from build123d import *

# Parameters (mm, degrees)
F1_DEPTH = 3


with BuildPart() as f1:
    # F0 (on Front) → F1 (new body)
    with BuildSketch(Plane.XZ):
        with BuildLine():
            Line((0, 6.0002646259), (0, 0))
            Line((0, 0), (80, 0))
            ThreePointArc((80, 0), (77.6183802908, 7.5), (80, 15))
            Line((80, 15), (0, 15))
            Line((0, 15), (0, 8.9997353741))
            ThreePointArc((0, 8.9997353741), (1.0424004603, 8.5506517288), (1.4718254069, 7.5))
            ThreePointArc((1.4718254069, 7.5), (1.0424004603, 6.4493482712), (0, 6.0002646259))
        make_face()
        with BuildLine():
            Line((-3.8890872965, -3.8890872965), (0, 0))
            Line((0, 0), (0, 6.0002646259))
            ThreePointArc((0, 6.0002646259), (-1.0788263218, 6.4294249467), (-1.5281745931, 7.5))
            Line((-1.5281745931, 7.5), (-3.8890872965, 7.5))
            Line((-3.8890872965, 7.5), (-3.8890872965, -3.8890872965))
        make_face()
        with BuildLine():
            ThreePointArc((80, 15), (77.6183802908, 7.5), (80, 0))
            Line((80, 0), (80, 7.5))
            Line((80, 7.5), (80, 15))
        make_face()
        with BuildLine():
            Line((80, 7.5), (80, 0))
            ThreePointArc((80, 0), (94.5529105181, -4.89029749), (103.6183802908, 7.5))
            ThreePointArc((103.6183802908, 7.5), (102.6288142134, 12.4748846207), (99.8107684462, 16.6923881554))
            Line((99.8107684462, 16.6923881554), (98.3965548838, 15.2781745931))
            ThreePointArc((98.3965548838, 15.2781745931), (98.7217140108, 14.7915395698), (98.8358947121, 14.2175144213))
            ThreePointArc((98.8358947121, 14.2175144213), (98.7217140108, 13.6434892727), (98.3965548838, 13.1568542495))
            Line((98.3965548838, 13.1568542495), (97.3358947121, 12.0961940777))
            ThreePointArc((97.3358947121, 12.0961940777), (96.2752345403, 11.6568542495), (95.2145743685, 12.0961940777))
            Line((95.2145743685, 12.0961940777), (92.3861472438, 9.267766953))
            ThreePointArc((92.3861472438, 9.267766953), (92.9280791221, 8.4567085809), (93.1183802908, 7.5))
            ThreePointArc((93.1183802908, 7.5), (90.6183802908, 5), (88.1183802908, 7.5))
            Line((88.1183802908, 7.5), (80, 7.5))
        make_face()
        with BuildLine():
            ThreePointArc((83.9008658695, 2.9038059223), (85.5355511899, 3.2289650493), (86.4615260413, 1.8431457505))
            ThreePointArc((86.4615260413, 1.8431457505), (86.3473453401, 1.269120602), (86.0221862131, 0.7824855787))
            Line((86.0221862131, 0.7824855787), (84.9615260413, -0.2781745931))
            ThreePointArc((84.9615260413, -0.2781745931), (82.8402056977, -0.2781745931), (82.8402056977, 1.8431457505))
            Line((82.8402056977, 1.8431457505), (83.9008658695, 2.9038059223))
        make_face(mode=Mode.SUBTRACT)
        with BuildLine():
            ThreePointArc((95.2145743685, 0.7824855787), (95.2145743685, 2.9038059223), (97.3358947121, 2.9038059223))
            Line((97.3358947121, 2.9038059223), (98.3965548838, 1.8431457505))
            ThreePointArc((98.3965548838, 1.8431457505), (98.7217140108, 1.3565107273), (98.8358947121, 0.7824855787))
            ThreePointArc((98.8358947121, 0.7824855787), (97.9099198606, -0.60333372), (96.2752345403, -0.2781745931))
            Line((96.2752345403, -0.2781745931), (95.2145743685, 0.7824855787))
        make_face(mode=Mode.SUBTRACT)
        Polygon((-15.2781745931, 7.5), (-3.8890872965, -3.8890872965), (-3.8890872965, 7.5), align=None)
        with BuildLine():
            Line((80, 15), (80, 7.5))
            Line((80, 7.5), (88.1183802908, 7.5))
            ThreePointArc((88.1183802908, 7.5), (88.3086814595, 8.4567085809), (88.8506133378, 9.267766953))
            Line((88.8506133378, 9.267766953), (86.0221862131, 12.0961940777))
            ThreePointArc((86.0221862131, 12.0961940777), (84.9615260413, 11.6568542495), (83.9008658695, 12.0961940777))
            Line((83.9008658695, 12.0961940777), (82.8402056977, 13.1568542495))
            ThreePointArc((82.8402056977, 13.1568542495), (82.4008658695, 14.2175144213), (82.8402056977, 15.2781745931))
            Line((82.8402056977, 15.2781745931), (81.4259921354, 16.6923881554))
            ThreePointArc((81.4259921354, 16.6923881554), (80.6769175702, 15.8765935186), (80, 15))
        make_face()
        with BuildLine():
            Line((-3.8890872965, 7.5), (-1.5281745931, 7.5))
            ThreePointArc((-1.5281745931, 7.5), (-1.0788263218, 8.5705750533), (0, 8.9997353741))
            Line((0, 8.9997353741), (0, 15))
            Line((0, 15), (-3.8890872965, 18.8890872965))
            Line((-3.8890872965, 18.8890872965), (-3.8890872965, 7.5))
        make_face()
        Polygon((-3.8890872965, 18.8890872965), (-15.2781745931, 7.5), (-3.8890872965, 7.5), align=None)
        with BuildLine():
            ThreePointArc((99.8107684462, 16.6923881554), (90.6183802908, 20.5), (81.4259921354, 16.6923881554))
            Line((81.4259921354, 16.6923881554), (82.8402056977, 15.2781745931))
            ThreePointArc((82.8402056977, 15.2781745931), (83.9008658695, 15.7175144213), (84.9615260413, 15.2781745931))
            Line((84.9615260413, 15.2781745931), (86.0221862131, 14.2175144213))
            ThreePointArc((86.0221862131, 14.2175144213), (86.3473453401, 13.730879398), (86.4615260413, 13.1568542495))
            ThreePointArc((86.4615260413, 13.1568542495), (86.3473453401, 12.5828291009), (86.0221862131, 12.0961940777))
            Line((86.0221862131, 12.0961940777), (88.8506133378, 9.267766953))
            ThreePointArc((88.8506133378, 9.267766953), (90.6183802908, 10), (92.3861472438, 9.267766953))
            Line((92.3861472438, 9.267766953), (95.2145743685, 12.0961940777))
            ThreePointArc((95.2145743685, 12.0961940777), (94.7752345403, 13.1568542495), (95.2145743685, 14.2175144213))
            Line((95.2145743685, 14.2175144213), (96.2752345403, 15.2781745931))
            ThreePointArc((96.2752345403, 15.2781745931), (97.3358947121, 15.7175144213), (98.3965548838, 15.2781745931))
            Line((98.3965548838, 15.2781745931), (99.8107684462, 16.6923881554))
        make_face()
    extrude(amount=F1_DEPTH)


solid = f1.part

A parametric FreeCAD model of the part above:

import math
import FreeCAD as App
import Part
import Sketcher
from FreeCAD import Vector

doc = App.newDocument("Part")
body = doc.addObject("PartDesign::Body", "Body")

sketch1 = doc.addObject("Sketcher::SketchObject", "Sketch")
body.addObject(sketch1)
sketch1.AttachmentSupport = (doc.XZ_Plane, [""])
sketch1.MapMode = "FlatFace"
sketch1.addGeometry([
    Part.LineSegment(Vector(0, 0, 0), Vector(80, 0, 0)),
    Part.ArcOfCircle(Part.Circle(Vector(90.6, 7.5, 0), Vector(0, 0, 1), 13), math.radians(-145), math.radians(0)),
    Part.ArcOfCircle(Part.Circle(Vector(90.6, 7.5, 0), Vector(0, 0, 1), 13), math.radians(0), math.radians(45)),
    Part.ArcOfCircle(Part.Circle(Vector(90.6, 7.5, 0), Vector(0, 0, 1), 13), math.radians(45), math.radians(135)),
    Part.ArcOfCircle(Part.Circle(Vector(90.6, 7.5, 0), Vector(0, 0, 1), 13), math.radians(135), math.radians(144.77)),
    Part.LineSegment(Vector(80, 15, 0), Vector(0, 15, 0)),
    Part.LineSegment(Vector(0, 15, 0), Vector(-3.9, 18.9, 0)),
    Part.LineSegment(Vector(-3.9, 18.9, 0), Vector(-15.3, 7.5, 0)),
    Part.LineSegment(Vector(-15.3, 7.5, 0), Vector(-3.9, -3.9, 0)),
    Part.LineSegment(Vector(-3.9, -3.9, 0), Vector(0, 0, 0)),
    Part.ArcOfCircle(Part.Circle(Vector(97.3, 14.2, 0), Vector(0, 0, 1), 1.5), math.radians(0), math.radians(45)),
    Part.ArcOfCircle(Part.Circle(Vector(97.3, 14.2, 0), Vector(0, 0, 1), 1.5), math.radians(-45), math.radians(0)),
    Part.LineSegment(Vector(98.4, 13.2, 0), Vector(97.3, 12.1, 0)),
    Part.ArcOfCircle(Part.Circle(Vector(96.3, 13.2, 0), Vector(0, 0, 1), 1.5), math.radians(-135), math.radians(-45)),
    Part.ArcOfCircle(Part.Circle(Vector(96.3, 13.2, 0), Vector(0, 0, 1), 1.5), math.radians(135), math.radians(225)),
    Part.LineSegment(Vector(95.2, 14.2, 0), Vector(96.3, 15.3, 0)),
    Part.ArcOfCircle(Part.Circle(Vector(97.3, 14.2, 0), Vector(0, 0, 1), 1.5), math.radians(45), math.radians(135)),
    Part.ArcOfCircle(Part.Circle(Vector(90.6, 7.5, 0), Vector(0, 0, 1), 2.5), math.radians(0), math.radians(45)),
    Part.ArcOfCircle(Part.Circle(Vector(90.6, 7.5, 0), Vector(0, 0, 1), 2.5), math.radians(180), math.radians(360)),
    Part.ArcOfCircle(Part.Circle(Vector(90.6, 7.5, 0), Vector(0, 0, 1), 2.5), math.radians(135), math.radians(180)),
    Part.ArcOfCircle(Part.Circle(Vector(90.6, 7.5, 0), Vector(0, 0, 1), 2.5), math.radians(45), math.radians(135)),
    Part.ArcOfCircle(Part.Circle(Vector(85, 13.2, 0), Vector(0, 0, 1), 1.5), math.radians(-135), math.radians(-45)),
    Part.LineSegment(Vector(83.9, 12.1, 0), Vector(82.8, 13.2, 0)),
    Part.ArcOfCircle(Part.Circle(Vector(83.9, 14.2, 0), Vector(0, 0, 1), 1.5), math.radians(135), math.radians(225)),
    Part.ArcOfCircle(Part.Circle(Vector(83.9, 14.2, 0), Vector(0, 0, 1), 1.5), math.radians(45), math.radians(135)),
    Part.LineSegment(Vector(85, 15.3, 0), Vector(86, 14.2, 0)),
    Part.ArcOfCircle(Part.Circle(Vector(85, 13.2, 0), Vector(0, 0, 1), 1.5), math.radians(0), math.radians(45)),
    Part.ArcOfCircle(Part.Circle(Vector(85, 13.2, 0), Vector(0, 0, 1), 1.5), math.radians(-45), math.radians(0)),
    Part.ArcOfCircle(Part.Circle(Vector(0, 7.5, 0), Vector(0, 0, 1), 1.5), math.radians(0), math.radians(89)),
    Part.ArcOfCircle(Part.Circle(Vector(0, 7.5, 0), Vector(0, 0, 1), 1.5), math.radians(-89), math.radians(0)),
    Part.ArcOfCircle(Part.Circle(Vector(0, 7.5, 0), Vector(0, 0, 1), 1.5), math.radians(180), math.radians(271)),
    Part.ArcOfCircle(Part.Circle(Vector(0, 7.5, 0), Vector(0, 0, 1), 1.5), math.radians(89), math.radians(180)),
    Part.LineSegment(Vector(82.8, 1.8, 0), Vector(83.9, 2.9, 0)),
    Part.ArcOfCircle(Part.Circle(Vector(85, 1.8, 0), Vector(0, 0, 1), 1.5), math.radians(0), math.radians(135)),
    Part.ArcOfCircle(Part.Circle(Vector(85, 1.8, 0), Vector(0, 0, 1), 1.5), math.radians(-45), math.radians(0)),
    Part.LineSegment(Vector(86, 0.8, 0), Vector(85, -0.3, 0)),
    Part.ArcOfCircle(Part.Circle(Vector(83.9, 0.8, 0), Vector(0, 0, 1), 1.5), math.radians(135), math.radians(315)),
    Part.LineSegment(Vector(96.3, -0.3, 0), Vector(95.2, 0.8, 0)),
    Part.ArcOfCircle(Part.Circle(Vector(96.3, 1.8, 0), Vector(0, 0, 1), 1.5), math.radians(45), math.radians(225)),
    Part.LineSegment(Vector(97.3, 2.9, 0), Vector(98.4, 1.8, 0)),
    Part.ArcOfCircle(Part.Circle(Vector(97.3, 0.8, 0), Vector(0, 0, 1), 1.5), math.radians(0), math.radians(45)),
    Part.ArcOfCircle(Part.Circle(Vector(97.3, 0.8, 0), Vector(0, 0, 1), 1.5), math.radians(-135), math.radians(0)),
], False)
sketch1.addConstraint([
    Sketcher.Constraint("Coincident", 0, 2, 1, 1),
    Sketcher.Constraint("Tangent", 1, 2, 2, 1),
    Sketcher.Constraint("Tangent", 2, 2, 3, 1),
    Sketcher.Constraint("Tangent", 3, 2, 4, 1),
    Sketcher.Constraint("Coincident", 4, 2, 5, 1),
    Sketcher.Constraint("Coincident", 5, 2, 6, 1),
    Sketcher.Constraint("Coincident", 6, 2, 7, 1),
    Sketcher.Constraint("Coincident", 7, 2, 8, 1),
    Sketcher.Constraint("Coincident", 8, 2, 9, 1),
    Sketcher.Constraint("Coincident", 9, 2, 0, 1),
    Sketcher.Constraint("Tangent", 10, 1, 11, 2),
    Sketcher.Constraint("Tangent", 11, 1, 12, 1),
    Sketcher.Constraint("Tangent", 12, 2, 13, 2),
    Sketcher.Constraint("Tangent", 13, 1, 14, 2),
    Sketcher.Constraint("Tangent", 14, 1, 15, 1),
    Sketcher.Constraint("Tangent", 15, 2, 16, 2),
    Sketcher.Constraint("Tangent", 16, 1, 10, 2),
    Sketcher.Constraint("Tangent", 17, 1, 18, 2),
    Sketcher.Constraint("Tangent", 18, 1, 19, 2),
    Sketcher.Constraint("Tangent", 19, 1, 20, 2),
    Sketcher.Constraint("Tangent", 20, 1, 17, 2),
    Sketcher.Constraint("Tangent", 21, 1, 22, 1),
    Sketcher.Constraint("Tangent", 22, 2, 23, 2),
    Sketcher.Constraint("Tangent", 23, 1, 24, 2),
    Sketcher.Constraint("Tangent", 24, 1, 25, 1),
    Sketcher.Constraint("Tangent", 25, 2, 26, 2),
    Sketcher.Constraint("Tangent", 26, 1, 27, 2),
    Sketcher.Constraint("Tangent", 27, 1, 21, 2),
    Sketcher.Constraint("Tangent", 28, 1, 29, 2),
    Sketcher.Constraint("Tangent", 29, 1, 30, 2),
    Sketcher.Constraint("Tangent", 30, 1, 31, 2),
    Sketcher.Constraint("Tangent", 31, 1, 28, 2),
    Sketcher.Constraint("Tangent", 32, 2, 33, 2),
    Sketcher.Constraint("Tangent", 33, 1, 34, 2),
    Sketcher.Constraint("Tangent", 34, 1, 35, 1),
    Sketcher.Constraint("Tangent", 35, 2, 36, 2),
    Sketcher.Constraint("Tangent", 36, 1, 32, 1),
    Sketcher.Constraint("Tangent", 37, 2, 38, 2),
    Sketcher.Constraint("Tangent", 38, 1, 39, 1),
    Sketcher.Constraint("Tangent", 39, 2, 40, 2),
    Sketcher.Constraint("Tangent", 40, 1, 41, 2),
    Sketcher.Constraint("Tangent", 41, 1, 37, 1),
    Sketcher.Constraint("Horizontal", 0),
    Sketcher.Constraint("Horizontal", 5),
    Sketcher.Constraint("Coincident", 9, 2, -1, 1),
    Sketcher.Constraint("Coincident", 3, 3, 1, 3),
    Sketcher.Constraint("Coincident", 17, 3, 1, 3),
    Sketcher.Constraint("Coincident", 26, 3, 21, 3),
    Sketcher.Constraint("Equal", 3, 4),
    Sketcher.Constraint("Equal", 10, 11),
    Sketcher.Constraint("Equal", 11, 13),
    Sketcher.Constraint("Equal", 13, 14),
    Sketcher.Constraint("Equal", 14, 16),
    Sketcher.Constraint("Equal", 17, 18),
    Sketcher.Constraint("Equal", 16, 21),
    Sketcher.Constraint("Equal", 21, 23),
    Sketcher.Constraint("Equal", 23, 24),
    Sketcher.Constraint("Equal", 27, 28),
    Sketcher.Constraint("Equal", 28, 29),
    Sketcher.Constraint("Equal", 31, 33),
    Sketcher.Constraint("Equal", 33, 34),
    Sketcher.Constraint("Equal", 34, 36),
    Sketcher.Constraint("Equal", 36, 38),
    Sketcher.Constraint("Equal", 38, 40),
    Sketcher.Constraint("Equal", 40, 41),
    Sketcher.Constraint("PointOnObject", 5, 2, -2),
    Sketcher.Constraint("PointOnObject", 29, 1, -2),
    Sketcher.Constraint("PointOnObject", 31, 1, -2),
    Sketcher.Constraint("Perpendicular", 6, 7),
    Sketcher.Constraint("Perpendicular", 7, 8),
    Sketcher.Constraint("Perpendicular", 8, 9),
    Sketcher.Constraint("Parallel", 9, 12),
    Sketcher.Constraint("Perpendicular", 15, 22),
    Sketcher.Constraint("Perpendicular", 25, 32),
    Sketcher.Constraint("Perpendicular", 35, 37),
    Sketcher.Constraint("Horizontal", 14, 3, 21, 3),
    Sketcher.Constraint("Horizontal", 16, 3, 23, 3),
    Sketcher.Constraint("Horizontal", 20, 3, 28, 3),
    Sketcher.Constraint("Horizontal", 34, 3, 38, 3),
    Sketcher.Constraint("Horizontal", 36, 3, 40, 3),
    Sketcher.Constraint("Horizontal", 31, 3, 1, 2),
    Sketcher.Constraint("Horizontal", 2, 2, 3, 2),
    Sketcher.Constraint("Horizontal", 1, 2, 7, 2),
    Sketcher.Constraint("Horizontal", 24, 3, 10, 1),
    Sketcher.Constraint("Horizontal", 27, 3, 11, 1),
    Sketcher.Constraint("Horizontal", 12, 2, 13, 1),
    Sketcher.Constraint("Horizontal", 15, 2, 16, 1),
    Sketcher.Constraint("Horizontal", 7, 2, 17, 1),
    Sketcher.Constraint("Horizontal", 17, 1, 18, 1),
    Sketcher.Constraint("Horizontal", 19, 1, 20, 1),
    Sketcher.Constraint("Horizontal", 13, 1, 21, 1),
    Sketcher.Constraint("Horizontal", 16, 1, 23, 1),
    Sketcher.Constraint("Horizontal", 22, 2, 26, 1),
    Sketcher.Constraint("Horizontal", 21, 1, 27, 1),
    Sketcher.Constraint("Horizontal", 18, 1, 28, 1),
    Sketcher.Constraint("Horizontal", 28, 1, 30, 1),
    Sketcher.Constraint("Horizontal", 38, 3, 33, 1),
    Sketcher.Constraint("Horizontal", 41, 3, 34, 1),
    Sketcher.Constraint("Horizontal", 37, 2, 40, 1),
    Sketcher.Constraint("Vertical", 27, 3, 33, 3),
    Sketcher.Constraint("Vertical", 14, 3, 38, 3),
    Sketcher.Constraint("Vertical", 0, 2, 4, 2),
    Sketcher.Constraint("Radius", 1, 13.0),
    Sketcher.Constraint("Radius", 10, 1.5),
    Sketcher.Constraint("Radius", 17, 2.5),
    Sketcher.Constraint("DistanceX", 0, 1, 0, 2, 80.0),
    Sketcher.Constraint("DistanceY", -1, 1, 4, 2, 15.0),
    Sketcher.Constraint("Distance", 6, 5.5),
    Sketcher.Constraint("DistanceX", -1, 1, 2, 2, 99.810768),
    Sketcher.Constraint("DistanceX", -1, 1, 10, 3, 97.335895),
    Sketcher.Constraint("DistanceY", -1, 1, 10, 3, 14.217514),
    Sketcher.Constraint("DistanceX", -1, 1, 21, 3, 84.961526),
    Sketcher.Constraint("DistanceX", 28, 3, -1, 1, 0.028175),
    Sketcher.Constraint("DistanceY", -1, 1, 33, 3, 1.843146),
    Sketcher.Constraint("DistanceX", -1, 1, 19, 1, 88.850613),
])
pad1 = doc.addObject("PartDesign::Pad", "Pad")
body.addObject(pad1)
pad1.Profile = sketch1
pad1.Length = 3

doc.recompute()
